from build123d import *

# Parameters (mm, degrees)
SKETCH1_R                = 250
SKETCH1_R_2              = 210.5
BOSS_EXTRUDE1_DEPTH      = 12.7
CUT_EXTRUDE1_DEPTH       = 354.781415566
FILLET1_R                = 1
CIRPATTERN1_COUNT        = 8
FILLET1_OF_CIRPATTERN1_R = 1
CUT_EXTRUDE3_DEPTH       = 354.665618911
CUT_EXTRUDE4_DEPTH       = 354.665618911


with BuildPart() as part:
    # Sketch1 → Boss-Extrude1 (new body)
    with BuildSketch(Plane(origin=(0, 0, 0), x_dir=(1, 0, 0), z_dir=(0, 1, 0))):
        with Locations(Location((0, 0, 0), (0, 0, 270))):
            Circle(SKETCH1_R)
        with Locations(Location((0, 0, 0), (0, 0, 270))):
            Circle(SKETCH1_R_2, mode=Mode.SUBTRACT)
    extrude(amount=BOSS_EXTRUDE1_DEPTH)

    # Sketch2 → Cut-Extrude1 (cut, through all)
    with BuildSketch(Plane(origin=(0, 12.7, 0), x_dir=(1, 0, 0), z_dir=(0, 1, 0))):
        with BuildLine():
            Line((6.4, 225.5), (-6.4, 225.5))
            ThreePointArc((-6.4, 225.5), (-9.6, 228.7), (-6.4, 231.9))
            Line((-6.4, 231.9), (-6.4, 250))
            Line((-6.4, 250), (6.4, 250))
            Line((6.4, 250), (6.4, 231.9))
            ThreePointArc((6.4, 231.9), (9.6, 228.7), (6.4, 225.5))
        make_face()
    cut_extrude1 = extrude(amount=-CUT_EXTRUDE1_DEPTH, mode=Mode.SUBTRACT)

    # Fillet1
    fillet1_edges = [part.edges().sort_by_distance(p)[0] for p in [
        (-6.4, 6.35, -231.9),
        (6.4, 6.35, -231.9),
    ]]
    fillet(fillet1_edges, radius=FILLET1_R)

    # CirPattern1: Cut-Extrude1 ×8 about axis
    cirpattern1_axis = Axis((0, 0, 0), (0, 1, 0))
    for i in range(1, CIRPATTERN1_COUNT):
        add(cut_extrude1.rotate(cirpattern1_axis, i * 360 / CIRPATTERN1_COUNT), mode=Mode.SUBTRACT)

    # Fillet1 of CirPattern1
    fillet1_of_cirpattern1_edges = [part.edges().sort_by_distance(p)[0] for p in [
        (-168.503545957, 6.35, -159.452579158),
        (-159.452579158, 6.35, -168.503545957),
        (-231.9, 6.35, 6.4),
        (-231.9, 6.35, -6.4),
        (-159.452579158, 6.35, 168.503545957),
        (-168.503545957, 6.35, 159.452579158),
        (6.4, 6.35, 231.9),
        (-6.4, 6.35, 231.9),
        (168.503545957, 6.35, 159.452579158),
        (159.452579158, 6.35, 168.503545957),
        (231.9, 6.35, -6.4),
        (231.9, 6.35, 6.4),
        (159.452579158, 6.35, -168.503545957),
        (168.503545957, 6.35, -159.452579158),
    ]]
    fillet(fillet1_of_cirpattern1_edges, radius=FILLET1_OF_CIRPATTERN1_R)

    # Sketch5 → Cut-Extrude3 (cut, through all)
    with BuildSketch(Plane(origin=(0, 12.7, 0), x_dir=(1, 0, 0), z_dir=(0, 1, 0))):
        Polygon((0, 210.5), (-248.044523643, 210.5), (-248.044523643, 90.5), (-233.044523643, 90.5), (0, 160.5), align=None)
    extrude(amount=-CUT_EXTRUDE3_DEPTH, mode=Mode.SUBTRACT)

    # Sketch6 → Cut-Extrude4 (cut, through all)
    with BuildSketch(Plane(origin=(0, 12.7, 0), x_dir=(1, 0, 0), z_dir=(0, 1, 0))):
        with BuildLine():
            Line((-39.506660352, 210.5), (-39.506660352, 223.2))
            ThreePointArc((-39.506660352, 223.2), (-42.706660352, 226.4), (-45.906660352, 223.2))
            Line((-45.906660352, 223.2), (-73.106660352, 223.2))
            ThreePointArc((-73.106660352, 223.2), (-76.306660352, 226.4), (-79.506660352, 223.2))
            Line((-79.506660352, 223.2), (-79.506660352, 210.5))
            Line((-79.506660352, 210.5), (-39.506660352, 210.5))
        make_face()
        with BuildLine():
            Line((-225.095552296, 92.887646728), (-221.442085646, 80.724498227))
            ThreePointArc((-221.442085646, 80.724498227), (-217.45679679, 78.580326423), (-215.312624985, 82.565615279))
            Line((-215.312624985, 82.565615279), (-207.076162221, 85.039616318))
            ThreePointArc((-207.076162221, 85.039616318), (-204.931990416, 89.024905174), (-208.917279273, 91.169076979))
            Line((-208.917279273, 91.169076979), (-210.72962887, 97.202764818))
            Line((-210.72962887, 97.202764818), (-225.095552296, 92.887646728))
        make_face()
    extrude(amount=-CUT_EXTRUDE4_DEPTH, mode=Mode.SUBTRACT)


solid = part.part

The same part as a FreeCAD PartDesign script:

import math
import FreeCAD as App
import Part
import Sketcher
Q = App.Units.Quantity


def edges_at(feature, points):
    """Names of the edges that pass closest to the given points."""
    edges = feature.Shape.Edges
    near = lambda p: min(range(len(edges)), key=lambda i: edges[i].distToShape(Part.Vertex(*p))[0])
    return sorted({f"Edge{near(p) + 1}" for p in points})


def add_polygon(sketch, points):
    """Adds a closed chain of lines whose ends are joined by coincident constraints."""
    first, n = sketch.GeometryCount, len(points)
    for a, b in zip(points, points[1:] + points[:1]):
        sketch.addGeometry(Part.LineSegment(App.Vector(*a, 0), App.Vector(*b, 0)), False)
    for i in range(n):
        sketch.addConstraint(Sketcher.Constraint("Coincident", first + i, 2, first + (i + 1) % n, 1))

doc = App.newDocument("Part")
body = doc.addObject("PartDesign::Body", "Body")

# Sketch on XZ plane
sketch1 = body.newObject("Sketcher::SketchObject", "Sketch")
sketch1.AttachmentSupport = (doc.getObject("XZ_Plane"), [""])
sketch1.MapMode = "FlatFace"
sketch1.addGeometry(Part.Circle(App.Vector(0, 0, 0), App.Vector(0, 0, 1), 250), False)
sketch1.addGeometry(Part.Circle(App.Vector(0, 0, 0), App.Vector(0, 0, 1), 210), False)
sketch1.addConstraint(Sketcher.Constraint("Coincident", 0, 3, -1, 1))
sketch1.addConstraint(Sketcher.Constraint("Coincident", 1, 3, -1, 1))
sketch1.addConstraint(Sketcher.Constraint("Diameter", 0, Q("500 mm")))
sketch1.addConstraint(Sketcher.Constraint("Diameter", 1, Q("421 mm")))
pad1 = body.newObject("PartDesign::Pad", "Pad")
pad1.Profile = sketch1
pad1.Length = 12.7
pad1.Reversed = True

# Sketch on XZ plane
sketch2 = body.newObject("Sketcher::SketchObject", "Sketch001")
sketch2.AttachmentSupport = (doc.getObject("XZ_Plane"), [""])
sketch2.MapMode = "FlatFace"
sketch2.AttachmentOffset = App.Placement(App.Vector(0, 0, -12.7), App.Rotation())
sketch2.addGeometry(Part.LineSegment(App.Vector(-6.4, -225.5, 0), App.Vector(6.4, -225.5, 0)), False)
sketch2.addGeometry(Part.ArcOfCircle(Part.Circle(App.Vector(6.4, -228.7, 0), App.Vector(0, 0, 1), 3.2), math.radians(-90), math.radians(90)), False)
sketch2.addGeometry(Part.LineSegment(App.Vector(6.4, -231.9, 0), App.Vector(6.4, -250, 0)), False)
sketch2.addGeometry(Part.LineSegment(App.Vector(6.4, -250, 0), App.Vector(-6.4, -250, 0)), False)
sketch2.addGeometry(Part.LineSegment(App.Vector(-6.4, -250, 0), App.Vector(-6.4, -231.9, 0)), False)
sketch2.addGeometry(Part.ArcOfCircle(Part.Circle(App.Vector(-6.4, -228.7, 0), App.Vector(0, 0, 1), 3.2), math.radians(90), math.radians(270)), False)
sketch2.addConstraint(Sketcher.Constraint("Tangent", 0, 2, 1, 2))
sketch2.addConstraint(Sketcher.Constraint("Coincident", 1, 1, 2, 1))
sketch2.addConstraint(Sketcher.Constraint("Coincident", 2, 2, 3, 1))
sketch2.addConstraint(Sketcher.Constraint("Coincident", 3, 2, 4, 1))
sketch2.addConstraint(Sketcher.Constraint("Coincident", 4, 2, 5, 2))
sketch2.addConstraint(Sketcher.Constraint("Tangent", 5, 1, 0, 1))
sketch2.addConstraint(Sketcher.Constraint("Horizontal", 0))
sketch2.addConstraint(Sketcher.Constraint("Vertical", 2))
sketch2.addConstraint(Sketcher.Constraint("Horizontal", 3))
sketch2.addConstraint(Sketcher.Constraint("Vertical", 4))
sketch2.addConstraint(Sketcher.Constraint("Equal", 1, 5))
sketch2.addConstraint(Sketcher.Constraint("Vertical", 0, 2, 1, 1))
sketch2.addConstraint(Sketcher.Constraint("Vertical", 5, 3, 3, 2))
sketch2.addConstraint(Sketcher.Constraint("Radius", 1, Q("3.2 mm")))
sketch2.addConstraint(Sketcher.Constraint("DistanceX", 0, 1, 0, 2, Q("12.8 mm")))
sketch2.addConstraint(Sketcher.Constraint("DistanceY", 2, 2, 2, 1, Q("18.1 mm")))
sketch2.addConstraint(Sketcher.Constraint("DistanceY", 2, 2, -1, 1, Q("250 mm")))
sketch2.addConstraint(Sketcher.Constraint("DistanceX", -1, 1, 1, 3, Q("6.4 mm")))
pocket1 = body.newObject("PartDesign::Pocket", "Pocket")
pocket1.Profile = sketch2
pocket1.Type = "ThroughAll"
pocket1.Reversed = True
doc.recompute()

fillet = body.newObject("PartDesign::Fillet", "Fillet")
fillet.Base = (pocket1, edges_at(pocket1, [(-6.4, 6.35, -231.9), (6.4, 6.35, -231.9)]))
fillet.Radius = 1
doc.recompute()

polarpattern = body.newObject("PartDesign::PolarPattern", "PolarPattern")
polarpattern.Originals = [pocket1]
polarpattern.Axis = (doc.getObject("Y_Axis"), [""])
polarpattern.Angle = 360
polarpattern.Occurrences = 8
body.Tip = polarpattern
doc.recompute()

fillet2 = body.newObject("PartDesign::Fillet", "Fillet001")
fillet2.Base = (polarpattern, edges_at(polarpattern, [
    (-168.504, 6.35, -159.453),
    (-159.453, 6.35, -168.504),
    (-231.9, 6.35, 6.4),
    (-231.9, 6.35, -6.4),
    (-159.453, 6.35, 168.504),
    (-168.504, 6.35, 159.453),
    (6.4, 6.35, 231.9),
    (-6.4, 6.35, 231.9),
    (168.504, 6.35, 159.453),
    (159.453, 6.35, 168.504),
    (231.9, 6.35, -6.4),
    (231.9, 6.35, 6.4),
    (159.453, 6.35, -168.504),
    (168.504, 6.35, -159.453),
]))
fillet2.Radius = 1

# Sketch on XZ plane
sketch3 = body.newObject("Sketcher::SketchObject", "Sketch002")
sketch3.AttachmentSupport = (doc.getObject("XZ_Plane"), [""])
sketch3.MapMode = "FlatFace"
sketch3.AttachmentOffset = App.Placement(App.Vector(0, 0, -12.7), App.Rotation())
add_polygon(sketch3, [(0, -210), (-248, -210), (-248, -90), (-233, -90), (0, -160)])  # lines 0-4
sketch3.addConstraint(Sketcher.Constraint("Horizontal", 0))
sketch3.addConstraint(Sketcher.Constraint("Vertical", 1))
sketch3.addConstraint(Sketcher.Constraint("Horizontal", 2))
sketch3.addConstraint(Sketcher.Constraint("Vertical", 4))
sketch3.addConstraint(Sketcher.Constraint("PointOnObject", 3, 2, -2))
sketch3.addConstraint(Sketcher.Constraint("DistanceX", 2, 1, 2, 2, Q("15 mm")))
sketch3.addConstraint(Sketcher.Constraint("DistanceY", 1, 1, 1, 2, Q("120 mm")))
sketch3.addConstraint(Sketcher.Constraint("DistanceY", 4, 2, 4, 1, Q("50 mm")))
sketch3.addConstraint(Sketcher.Constraint("DistanceY", 0, 2, -1, 1, Q("210.5 mm")))
sketch3.addConstraint(Sketcher.Constraint("DistanceX", 0, 2, 0, 1, Q("248.044524 mm")))
pocket2 = body.newObject("PartDesign::Pocket", "Pocket001")
pocket2.Profile = sketch3
pocket2.Type = "ThroughAll"
pocket2.Reversed = True

# Sketch on XZ plane
sketch4 = body.newObject("Sketcher::SketchObject", "Sketch003")
sketch4.AttachmentSupport = (doc.getObject("XZ_Plane"), [""])
sketch4.MapMode = "FlatFace"
sketch4.AttachmentOffset = App.Placement(App.Vector(0, 0, -12.7), App.Rotation())
sketch4.addGeometry(Part.LineSegment(App.Vector(-39.5, -210.5, 0), App.Vector(-39.5, -223.2, 0)), False)
sketch4.addGeometry(Part.ArcOfCircle(Part.Circle(App.Vector(-42.7, -223.2, 0), App.Vector(0, 0, 1), 3.2), math.radians(180), math.radians(360)), False)
sketch4.addGeometry(Part.LineSegment(App.Vector(-45.9, -223.2, 0), App.Vector(-73.1, -223.2, 0)), False)
sketch4.addGeometry(Part.ArcOfCircle(Part.Circle(App.Vector(-76.3, -223.2, 0), App.Vector(0, 0, 1), 3.2), math.radians(180), math.radians(360)), False)
sketch4.addGeometry(Part.LineSegment(App.Vector(-79.5, -223.2, 0), App.Vector(-79.5, -210.5, 0)), False)
sketch4.addGeometry(Part.LineSegment(App.Vector(-79.5, -210.5, 0), App.Vector(-39.5, -210.5, 0)), False)
sketch4.addGeometry(Part.LineSegment(App.Vector(-225.1, -92.9, 0), App.Vector(-221.4, -80.7, 0)), False)
sketch4.addGeometry(Part.ArcOfCircle(Part.Circle(App.Vector(-218.4, -81.6, 0), App.Vector(0, 0, 1), 3.2), math.radians(-17), math.radians(163)), False)
sketch4.addGeometry(Part.LineSegment(App.Vector(-215.3, -82.6, 0), App.Vector(-207.1, -85, 0)), False)
sketch4.addGeometry(Part.ArcOfCircle(Part.Circle(App.Vector(-208, -88.1, 0), App.Vector(0, 0, 1), 3.2), math.radians(-107), math.radians(73)), False)
sketch4.addGeometry(Part.LineSegment(App.Vector(-208.9, -91.2, 0), App.Vector(-210.7, -97.2, 0)), False)
sketch4.addGeometry(Part.LineSegment(App.Vector(-210.7, -97.2, 0), App.Vector(-225.1, -92.9, 0)), False)
sketch4.addConstraint(Sketcher.Constraint("Tangent", 0, 2, 1, 2))
sketch4.addConstraint(Sketcher.Constraint("Coincident", 1, 1, 2, 1))
sketch4.addConstraint(Sketcher.Constraint("Coincident", 2, 2, 3, 2))
sketch4.addConstraint(Sketcher.Constraint("Tangent", 3, 1, 4, 1))
sketch4.addConstraint(Sketcher.Constraint("Coincident", 4, 2, 5, 1))
sketch4.addConstraint(Sketcher.Constraint("Coincident", 5, 2, 0, 1))
sketch4.addConstraint(Sketcher.Constraint("Tangent", 6, 2, 7, 2))
sketch4.addConstraint(Sketcher.Constraint("Coincident", 7, 1, 8, 1))
sketch4.addConstraint(Sketcher.Constraint("Tangent", 8, 2, 9, 2))
sketch4.addConstraint(Sketcher.Constraint("Coincident", 9, 1, 10, 1))
sketch4.addConstraint(Sketcher.Constraint("Coincident", 10, 2, 11, 1))
sketch4.addConstraint(Sketcher.Constraint("Coincident", 11, 2, 6, 1))
sketch4.addConstraint(Sketcher.Constraint("Vertical", 0))
sketch4.addConstraint(Sketcher.Constraint("Horizontal", 2))
sketch4.addConstraint(Sketcher.Constraint("Vertical", 4))
sketch4.addConstraint(Sketcher.Constraint("Horizontal", 5))
sketch4.addConstraint(Sketcher.Constraint("Equal", 1, 3))
sketch4.addConstraint(Sketcher.Constraint("Equal", 3, 7))
sketch4.addConstraint(Sketcher.Constraint("Equal", 7, 9))
sketch4.addConstraint(Sketcher.Constraint("Perpendicular", 6, 8))
sketch4.addConstraint(Sketcher.Constraint("Perpendicular", 8, 10))
sketch4.addConstraint(Sketcher.Constraint("Perpendicular", 10, 11))
sketch4.addConstraint(Sketcher.Constraint("Horizontal", 1, 3, 3, 3))
sketch4.addConstraint(Sketcher.Constraint("Horizontal", 0, 2, 1, 1))
sketch4.addConstraint(Sketcher.Constraint("Radius", 1, Q("3.2 mm")))
sketch4.addConstraint(Sketcher.Constraint("DistanceX", 5, 1, 5, 2, Q("40 mm")))
sketch4.addConstraint(Sketcher.Constraint("Distance", 11, Q("15 mm")))
sketch4.addConstraint(Sketcher.Constraint("DistanceY", 0, 2, 0, 1, Q("12.7 mm")))
sketch4.addConstraint(Sketcher.Constraint("Distance", 6, Q("12.7 mm")))
sketch4.addConstraint(Sketcher.Constraint("Distance", 8, Q("8.6 mm")))
sketch4.addConstraint(Sketcher.Constraint("Distance", 10, Q("6.3 mm")))
sketch4.addConstraint(Sketcher.Constraint("DistanceY", 1, 3, -1, 1, Q("223.2 mm")))
sketch4.addConstraint(Sketcher.Constraint("DistanceY", 8, 2, 7, 1, Q("2.474001 mm")))
sketch4.addConstraint(Sketcher.Constraint("DistanceY", 6, 2, -1, 1, Q("80.724498 mm")))
sketch4.addConstraint(Sketcher.Constraint("DistanceX", 8, 2, 4, 2, Q("127.569502 mm")))
sketch4.addConstraint(Sketcher.Constraint("DistanceX", 1, 3, -1, 1, Q("42.70666 mm")))
pocket3 = body.newObject("PartDesign::Pocket", "Pocket002")
pocket3.Profile = sketch4
pocket3.Type = "ThroughAll"
pocket3.Reversed = True

doc.recompute()
